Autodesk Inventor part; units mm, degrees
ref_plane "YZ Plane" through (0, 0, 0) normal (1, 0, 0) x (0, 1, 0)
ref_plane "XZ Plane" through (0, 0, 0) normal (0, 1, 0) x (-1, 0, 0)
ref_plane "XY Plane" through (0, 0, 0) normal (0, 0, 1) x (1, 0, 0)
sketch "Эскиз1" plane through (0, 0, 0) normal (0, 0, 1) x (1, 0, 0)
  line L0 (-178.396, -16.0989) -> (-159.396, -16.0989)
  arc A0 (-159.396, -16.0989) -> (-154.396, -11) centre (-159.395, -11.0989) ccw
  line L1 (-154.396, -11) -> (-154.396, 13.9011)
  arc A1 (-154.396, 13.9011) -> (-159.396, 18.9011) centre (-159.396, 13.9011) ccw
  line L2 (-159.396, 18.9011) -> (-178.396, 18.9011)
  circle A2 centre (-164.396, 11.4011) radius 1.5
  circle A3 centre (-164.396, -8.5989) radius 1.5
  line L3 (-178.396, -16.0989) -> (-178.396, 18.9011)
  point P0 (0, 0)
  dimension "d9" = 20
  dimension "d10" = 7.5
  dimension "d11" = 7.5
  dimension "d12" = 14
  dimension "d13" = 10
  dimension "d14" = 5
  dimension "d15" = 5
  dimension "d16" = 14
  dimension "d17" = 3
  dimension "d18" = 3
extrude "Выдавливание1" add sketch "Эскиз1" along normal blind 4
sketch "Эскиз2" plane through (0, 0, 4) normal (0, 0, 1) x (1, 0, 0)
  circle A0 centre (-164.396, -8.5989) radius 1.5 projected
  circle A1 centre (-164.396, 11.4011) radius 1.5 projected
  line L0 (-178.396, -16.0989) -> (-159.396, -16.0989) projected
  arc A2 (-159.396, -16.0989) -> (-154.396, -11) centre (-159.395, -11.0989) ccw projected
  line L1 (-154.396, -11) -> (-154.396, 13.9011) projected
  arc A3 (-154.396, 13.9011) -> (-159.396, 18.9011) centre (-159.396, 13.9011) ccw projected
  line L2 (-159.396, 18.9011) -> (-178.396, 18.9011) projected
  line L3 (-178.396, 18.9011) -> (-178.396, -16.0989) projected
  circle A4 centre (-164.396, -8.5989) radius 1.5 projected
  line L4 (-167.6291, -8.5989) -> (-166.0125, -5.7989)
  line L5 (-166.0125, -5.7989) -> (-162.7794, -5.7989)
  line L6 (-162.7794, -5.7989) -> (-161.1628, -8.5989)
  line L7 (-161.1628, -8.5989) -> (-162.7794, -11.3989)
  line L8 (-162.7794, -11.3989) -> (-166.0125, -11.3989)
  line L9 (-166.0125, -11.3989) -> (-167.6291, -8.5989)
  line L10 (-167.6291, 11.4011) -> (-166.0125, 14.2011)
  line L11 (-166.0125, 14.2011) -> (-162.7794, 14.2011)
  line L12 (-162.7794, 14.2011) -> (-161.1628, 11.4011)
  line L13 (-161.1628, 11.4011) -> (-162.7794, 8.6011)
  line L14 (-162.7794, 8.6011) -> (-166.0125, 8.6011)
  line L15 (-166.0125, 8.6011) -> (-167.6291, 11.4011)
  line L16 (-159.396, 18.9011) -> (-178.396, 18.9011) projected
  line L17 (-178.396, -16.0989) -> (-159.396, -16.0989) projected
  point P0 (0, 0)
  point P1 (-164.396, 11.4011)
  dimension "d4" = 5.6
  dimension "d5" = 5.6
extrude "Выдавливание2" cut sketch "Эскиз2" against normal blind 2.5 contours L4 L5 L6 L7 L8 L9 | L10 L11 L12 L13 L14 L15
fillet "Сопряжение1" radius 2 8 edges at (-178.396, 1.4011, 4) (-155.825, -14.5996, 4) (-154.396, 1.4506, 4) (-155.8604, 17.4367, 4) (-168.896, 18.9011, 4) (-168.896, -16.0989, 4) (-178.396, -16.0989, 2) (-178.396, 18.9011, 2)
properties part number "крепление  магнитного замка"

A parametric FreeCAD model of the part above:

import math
import FreeCAD as App
import Part
import Sketcher

V = App.Vector
Q = App.Units.Quantity


def edges_at(feature, points):
    """Names of the edges that pass closest to the given points."""
    edges = feature.Shape.Edges
    near = lambda p: min(range(len(edges)), key=lambda i: edges[i].distToShape(Part.Vertex(*p))[0])
    return sorted({f"Edge{near(p) + 1}" for p in points})


def add_polygon(sketch, points):
    """Adds a closed chain of lines whose ends are joined by coincident constraints."""
    first, n = sketch.GeometryCount, len(points)
    for a, b in zip(points, points[1:] + points[:1]):
        sketch.addGeometry(Part.LineSegment(App.Vector(*a, 0), App.Vector(*b, 0)), False)
    for i in range(n):
        sketch.addConstraint(Sketcher.Constraint("Coincident", first + i, 2, first + (i + 1) % n, 1))

doc = App.newDocument("Part")
body = doc.addObject("PartDesign::Body", "Body")

sketch1 = body.newObject("Sketcher::SketchObject", "Sketch")
sketch1.AttachmentSupport = (doc.getObject("XY_Plane"), [""])
sketch1.MapMode = "FlatFace"
sketch1.addGeometry([
    Part.LineSegment(V(-178.396, 18.9011, 0), V(-178.396, -16.0989, 0)),
    Part.LineSegment(V(-178.396, -16.0989, 0), V(-159.396, -16.0989, 0)),
    Part.ArcOfCircle(Part.Circle(V(-159.395, -11.0989, 0), V(0, 0, 1), 5), math.radians(-90.011459), math.radians(1.133389)),
    Part.LineSegment(V(-154.396, -11, 0), V(-154.396, 13.9011, 0)),
    Part.ArcOfCircle(Part.Circle(V(-159.396, 13.9011, 0), V(0, 0, 1), 5), math.radians(0), math.radians(90)),
    Part.LineSegment(V(-159.396, 18.9011, 0), V(-178.396, 18.9011, 0)),
    Part.Circle(V(-164.396, -8.5989, 0), V(0, 0, 1), 1.5),
    Part.Circle(V(-164.396, 11.4011, 0), V(0, 0, 1), 1.5),
], False)
sketch1.addConstraint([
    Sketcher.Constraint("Coincident", 0, 2, 1, 1),
    Sketcher.Constraint("Coincident", 1, 2, 2, 1),
    Sketcher.Constraint("Coincident", 2, 2, 3, 1),
    Sketcher.Constraint("Coincident", 3, 2, 4, 1),
    Sketcher.Constraint("Coincident", 4, 2, 5, 1),
    Sketcher.Constraint("Coincident", 5, 2, 0, 1),
    Sketcher.Constraint("Vertical", 0),
    Sketcher.Constraint("Horizontal", 1),
    Sketcher.Constraint("Vertical", 3),
    Sketcher.Constraint("Horizontal", 5),
    Sketcher.Constraint("Diameter", 6, Q("3 mm")),
    Sketcher.Constraint("Diameter", 7, Q("3 mm")),
    Sketcher.Constraint("Radius", 2, Q("5 mm")),
    Sketcher.Constraint("Radius", 4, Q("5 mm")),
    Sketcher.Constraint("DistanceX", 6, 3, 4, 3, Q("5 mm")),
    Sketcher.Constraint("DistanceX", 7, 3, 4, 3, Q("5 mm")),
    Sketcher.Constraint("DistanceY", 6, 3, 7, 3, Q("20 mm")),
    Sketcher.Constraint("DistanceX", 0, 2, 6, 3, Q("14 mm")),
    Sketcher.Constraint("DistanceX", 6, 3, 1, 2, Q("5 mm")),
    Sketcher.Constraint("DistanceX", 4, 2, 3, 2, Q("5 mm")),
    Sketcher.Constraint("DistanceY", 3, 2, 4, 2, Q("5 mm")),
    Sketcher.Constraint("DistanceY", 0, 2, 6, 3, Q("7.5 mm")),
    Sketcher.Constraint("DistanceY", 7, 3, 4, 2, Q("7.5 mm")),
    Sketcher.Constraint("DistanceY", 2, 2, -1, 1, Q("11 mm")),
    Sketcher.Constraint("DistanceY", 3, 1, 3, 2, Q("24.901 mm")),
    Sketcher.Constraint("DistanceX", 2, 3, -1, 1, Q("159.395 mm")),
])
pad1 = body.newObject("PartDesign::Pad", "Pad")
pad1.Profile = sketch1
pad1.Length = 4

sketch2 = body.newObject("Sketcher::SketchObject", "Sketch001")
sketch2.AttachmentSupport = (doc.getObject("XY_Plane"), [""])
sketch2.MapMode = "FlatFace"
sketch2.AttachmentOffset = App.Placement(V(0, 0, 4), App.Rotation())
add_polygon(sketch2, [(-166, -5.8), (-167.6, -8.6), (-166, -11.4), (-162.8, -11.4), (-161.2, -8.6), (-162.8, -5.8)])
sketch2.addGeometry(Part.Circle(V(-164.4, -8.6, 0), V(0, 0, 1), 1.5), False)
add_polygon(sketch2, [(-166, 14.2), (-167.6, 11.4), (-166, 8.6), (-162.8, 8.6), (-161.2, 11.4), (-162.8, 14.2)])
sketch2.addGeometry(Part.Circle(V(-164.4, 11.4, 0), V(0, 0, 1), 1.5), False)
sketch2.addConstraint([
    Sketcher.Constraint("Horizontal", 2),
    Sketcher.Constraint("Horizontal", 5),
    Sketcher.Constraint("Horizontal", 9),
    Sketcher.Constraint("Horizontal", 12),
    Sketcher.Constraint("Equal", 6, 13),
    Sketcher.Constraint("Parallel", 0, 3),
    Sketcher.Constraint("Parallel", 1, 4),
    Sketcher.Constraint("Parallel", 3, 7),
    Sketcher.Constraint("Parallel", 4, 8),
    Sketcher.Constraint("Parallel", 7, 10),
    Sketcher.Constraint("Parallel", 8, 11),
    Sketcher.Constraint("Horizontal", 6, 3, 0, 2),
    Sketcher.Constraint("Horizontal", 0, 2, 3, 2),
    Sketcher.Constraint("Horizontal", 13, 3, 7, 2),
    Sketcher.Constraint("Horizontal", 7, 2, 10, 2),
    Sketcher.Constraint("Vertical", 6, 3, 13, 3),
    Sketcher.Constraint("Vertical", 2, 2, 4, 2),
    Sketcher.Constraint("Vertical", 1, 2, 5, 2),
    Sketcher.Constraint("Vertical", 0, 2, 7, 2),
    Sketcher.Constraint("Vertical", 5, 2, 8, 2),
    Sketcher.Constraint("Vertical", 4, 2, 9, 2),
    Sketcher.Constraint("Vertical", 9, 2, 11, 2),
    Sketcher.Constraint("Diameter", 6, Q("3 mm")),
    Sketcher.Constraint("DistanceY", 2, 2, 4, 2, Q("5.6 mm")),
    Sketcher.Constraint("Angle", 0, Q("-120.0003 deg")),
    Sketcher.Constraint("DistanceY", 6, 3, 13, 3, Q("20 mm")),
    Sketcher.Constraint("DistanceX", 2, 1, 2, 2, Q("3.233 mm")),
    Sketcher.Constraint("DistanceX", 6, 3, -1, 1, Q("164.396 mm")),
    Sketcher.Constraint("DistanceY", 6, 3, -1, 1, Q("8.599 mm")),
    Sketcher.Constraint("DistanceX", 0, 2, -1, 1, Q("167.629 mm")),
])
pocket1 = body.newObject("PartDesign::Pocket", "Pocket")
pocket1.Profile = sketch2
pocket1.Length = 2.5
doc.recompute()

fillet = body.newObject("PartDesign::Fillet", "Fillet")
fillet.Base = (pocket1, edges_at(pocket1, [
    (-178.396, 1.401, 4),
    (-155.825, -14.6, 4),
    (-154.396, 1.451, 4),
    (-155.86, 17.437, 4),
    (-168.896, 18.901, 4),
    (-168.896, -16.099, 4),
    (-178.396, -16.099, 2),
    (-178.396, 18.901, 2),
]))
fillet.Radius = 2

doc.recompute()
